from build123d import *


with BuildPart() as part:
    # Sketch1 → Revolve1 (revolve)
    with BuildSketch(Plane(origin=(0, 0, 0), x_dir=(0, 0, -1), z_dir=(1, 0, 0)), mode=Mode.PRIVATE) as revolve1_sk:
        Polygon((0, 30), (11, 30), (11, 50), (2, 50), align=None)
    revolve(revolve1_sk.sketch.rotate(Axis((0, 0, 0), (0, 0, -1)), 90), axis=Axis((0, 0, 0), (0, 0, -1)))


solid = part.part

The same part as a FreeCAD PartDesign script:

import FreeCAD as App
import Part
import Sketcher


def add_polygon(sketch, points):
    """Adds a closed chain of lines whose ends are joined by coincident constraints."""
    first, n = sketch.GeometryCount, len(points)
    for a, b in zip(points, points[1:] + points[:1]):
        sketch.addGeometry(Part.LineSegment(App.Vector(*a, 0), App.Vector(*b, 0)), False)
    for i in range(n):
        sketch.addConstraint(Sketcher.Constraint("Coincident", first + i, 2, first + (i + 1) % n, 1))

doc = App.newDocument("Part")
params = doc.addObject("Spreadsheet::Sheet", "Params")
for row, (alias, value) in enumerate([
    ("sketch1_width", "20 mm"),
    ("sketch1_height", "11 mm"),
    ("sketch1_height2", "9 mm"),
    ("revolution_angle", "360 deg"),
], start=1):
    params.set(f"A{row}", alias)
    params.set(f"B{row}", "=" + value)
    params.setAlias(f"B{row}", alias)

body = doc.addObject("PartDesign::Body", "Body")

sketch1 = body.newObject("Sketcher::SketchObject", "Sketch")
sketch1.AttachmentSupport = (doc.getObject("YZ_Plane"), [""])
sketch1.MapMode = "FlatFace"
add_polygon(sketch1, [(30, 0), (30, -11), (50, -11), (50, -2)])
sketch1.addConstraint(Sketcher.Constraint("Vertical", 0))
sketch1.addConstraint(Sketcher.Constraint("Horizontal", 1))
sketch1.addConstraint(Sketcher.Constraint("Vertical", 2))
sketch1.addConstraint(Sketcher.Constraint("PointOnObject", 3, 2, -1))
sketch1.addConstraint(Sketcher.Constraint("DistanceX", 1, 1, 1, 2, 20.0))
sketch1.addConstraint(Sketcher.Constraint("DistanceY", 0, 2, 0, 1, 11.0))
sketch1.addConstraint(Sketcher.Constraint("DistanceY", 2, 1, 2, 2, 9.0))
sketch1.addConstraint(Sketcher.Constraint("DistanceX", -1, 1, 0, 2, 30.0))
sketch1.setExpression("Constraints[8]", "Params.sketch1_width")
sketch1.setExpression("Constraints[9]", "Params.sketch1_height")
sketch1.setExpression("Constraints[10]", "Params.sketch1_height2")
revolution = body.newObject("PartDesign::Revolution", "Revolution")
revolution.Profile = sketch1
revolution.ReferenceAxis = (sketch1, ["V_Axis"])
revolution.setExpression("Angle", "Params.revolution_angle")

doc.recompute()
